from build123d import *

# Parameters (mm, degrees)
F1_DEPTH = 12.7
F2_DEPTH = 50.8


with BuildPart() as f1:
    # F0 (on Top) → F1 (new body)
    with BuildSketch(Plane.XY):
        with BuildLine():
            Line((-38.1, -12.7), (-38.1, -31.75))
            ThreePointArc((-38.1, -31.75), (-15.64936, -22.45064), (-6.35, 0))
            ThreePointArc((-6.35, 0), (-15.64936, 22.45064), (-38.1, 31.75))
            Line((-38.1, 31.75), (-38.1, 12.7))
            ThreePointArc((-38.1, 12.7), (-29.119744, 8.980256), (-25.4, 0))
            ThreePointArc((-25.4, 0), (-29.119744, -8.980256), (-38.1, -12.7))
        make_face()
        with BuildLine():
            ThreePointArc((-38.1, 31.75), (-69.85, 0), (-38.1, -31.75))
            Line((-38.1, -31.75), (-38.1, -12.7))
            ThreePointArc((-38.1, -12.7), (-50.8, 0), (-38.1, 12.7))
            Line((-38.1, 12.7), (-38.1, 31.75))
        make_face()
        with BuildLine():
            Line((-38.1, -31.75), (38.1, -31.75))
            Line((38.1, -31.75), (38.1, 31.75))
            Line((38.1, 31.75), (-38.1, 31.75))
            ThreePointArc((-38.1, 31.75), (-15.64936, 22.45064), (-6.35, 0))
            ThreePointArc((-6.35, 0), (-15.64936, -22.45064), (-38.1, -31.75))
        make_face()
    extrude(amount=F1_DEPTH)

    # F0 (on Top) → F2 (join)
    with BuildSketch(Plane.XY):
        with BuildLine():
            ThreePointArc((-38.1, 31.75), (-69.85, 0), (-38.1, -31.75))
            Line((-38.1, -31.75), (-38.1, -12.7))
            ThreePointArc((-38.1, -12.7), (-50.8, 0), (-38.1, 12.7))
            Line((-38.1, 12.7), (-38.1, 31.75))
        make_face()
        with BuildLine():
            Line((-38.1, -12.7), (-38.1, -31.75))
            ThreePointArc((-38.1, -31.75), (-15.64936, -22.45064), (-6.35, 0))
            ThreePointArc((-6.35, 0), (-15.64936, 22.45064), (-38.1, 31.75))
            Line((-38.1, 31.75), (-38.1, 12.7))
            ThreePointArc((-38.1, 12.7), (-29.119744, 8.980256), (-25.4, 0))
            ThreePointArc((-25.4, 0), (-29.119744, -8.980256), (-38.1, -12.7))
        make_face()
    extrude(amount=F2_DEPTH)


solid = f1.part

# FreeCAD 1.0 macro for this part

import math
import FreeCAD as App
import Part
import Sketcher

V = App.Vector
Q = App.Units.Quantity

doc = App.newDocument("Part")
body = doc.addObject("PartDesign::Body", "Body")

sketch1 = doc.addObject("Sketcher::SketchObject", "Sketch")
body.addObject(sketch1)
sketch1.AttachmentSupport = (doc.XY_Plane, [""])
sketch1.MapMode = "FlatFace"
sketch1.addGeometry(Part.ArcOfCircle(Part.Circle(V(-38, 0, 0), V(0, 0, 1), 32), math.radians(90), math.radians(270)), False)
sketch1.addGeometry(Part.LineSegment(V(-38, -32, 0), V(38, -32, 0)), False)
sketch1.addGeometry(Part.LineSegment(V(38, -32, 0), V(38, 32, 0)), False)
sketch1.addGeometry(Part.LineSegment(V(38, 32, 0), V(-38, 32, 0)), False)
sketch1.addGeometry(Part.ArcOfCircle(Part.Circle(V(-38, 0, 0), V(0, 0, 1), 13), math.radians(0), math.radians(90)), False)
sketch1.addGeometry(Part.ArcOfCircle(Part.Circle(V(-38, 0, 0), V(0, 0, 1), 13), math.radians(-90), math.radians(0)), False)
sketch1.addGeometry(Part.ArcOfCircle(Part.Circle(V(-38, 0, 0), V(0, 0, 1), 13), math.radians(90), math.radians(270)), False)
sketch1.addConstraint(Sketcher.Constraint("Tangent", 0, 2, 1, 1))
sketch1.addConstraint(Sketcher.Constraint("Coincident", 1, 2, 2, 1))
sketch1.addConstraint(Sketcher.Constraint("Coincident", 2, 2, 3, 1))
sketch1.addConstraint(Sketcher.Constraint("Tangent", 3, 2, 0, 1))
sketch1.addConstraint(Sketcher.Constraint("Tangent", 4, 1, 5, 2))
sketch1.addConstraint(Sketcher.Constraint("Tangent", 5, 1, 6, 2))
sketch1.addConstraint(Sketcher.Constraint("Tangent", 6, 1, 4, 2))
sketch1.addConstraint(Sketcher.Constraint("Horizontal", 1))
sketch1.addConstraint(Sketcher.Constraint("Vertical", 2))
sketch1.addConstraint(Sketcher.Constraint("Horizontal", 3))
sketch1.addConstraint(Sketcher.Constraint("Coincident", 4, 3, 0, 3))
sketch1.addConstraint(Sketcher.Constraint("Symmetric", 0, 2, 2, 2, -1, 1))
sketch1.addConstraint(Sketcher.Constraint("PointOnObject", 4, 1, -1))
sketch1.addConstraint(Sketcher.Constraint("Vertical", 3, 2, 5, 1))
sketch1.addConstraint(Sketcher.Constraint("Vertical", 5, 1, 6, 1))
sketch1.addConstraint(Sketcher.Constraint("Radius", 4, Q("0.5 in")))
sketch1.addConstraint(Sketcher.Constraint("DistanceX", 1, 1, 1, 2, Q("3 in")))
sketch1.addConstraint(Sketcher.Constraint("Radius", 0, Q("1.25 in")))
pad1 = doc.addObject("PartDesign::Pad", "Pad")
body.addObject(pad1)
pad1.Profile = sketch1
pad1.Length = Q("0.5 in")

sketch2 = doc.addObject("Sketcher::SketchObject", "Sketch001")
body.addObject(sketch2)
sketch2.AttachmentSupport = (doc.XY_Plane, [""])
sketch2.MapMode = "FlatFace"
sketch2.addGeometry(Part.ArcOfCircle(Part.Circle(V(-38, 0, 0), V(0, 0, 1), 32), math.radians(90), math.radians(270)), False)
sketch2.addGeometry(Part.ArcOfCircle(Part.Circle(V(-38, 0, 0), V(0, 0, 1), 32), math.radians(-90), math.radians(0)), False)
sketch2.addGeometry(Part.ArcOfCircle(Part.Circle(V(-38, 0, 0), V(0, 0, 1), 32), math.radians(0), math.radians(90)), False)
sketch2.addGeometry(Part.ArcOfCircle(Part.Circle(V(-38, 0, 0), V(0, 0, 1), 13), math.radians(90), math.radians(270)), False)
sketch2.addGeometry(Part.ArcOfCircle(Part.Circle(V(-38, 0, 0), V(0, 0, 1), 13), math.radians(0), math.radians(90)), False)
sketch2.addGeometry(Part.ArcOfCircle(Part.Circle(V(-38, 0, 0), V(0, 0, 1), 13), math.radians(-90), math.radians(0)), False)
sketch2.addConstraint(Sketcher.Constraint("Tangent", 0, 2, 1, 1))
sketch2.addConstraint(Sketcher.Constraint("Tangent", 1, 2, 2, 1))
sketch2.addConstraint(Sketcher.Constraint("Tangent", 2, 2, 0, 1))
sketch2.addConstraint(Sketcher.Constraint("Tangent", 3, 1, 4, 2))
sketch2.addConstraint(Sketcher.Constraint("Tangent", 4, 1, 5, 2))
sketch2.addConstraint(Sketcher.Constraint("Tangent", 5, 1, 3, 2))
sketch2.addConstraint(Sketcher.Constraint("Coincident", 3, 3, 0, 3))
sketch2.addConstraint(Sketcher.Constraint("Symmetric", 0, 2, 2, 2, -1))
sketch2.addConstraint(Sketcher.Constraint("PointOnObject", 1, 2, -1))
sketch2.addConstraint(Sketcher.Constraint("PointOnObject", 4, 1, -1))
sketch2.addConstraint(Sketcher.Constraint("Vertical", 5, 3, 0, 2))
sketch2.addConstraint(Sketcher.Constraint("Vertical", 2, 2, 3, 1))
sketch2.addConstraint(Sketcher.Constraint("Vertical", 3, 1, 5, 1))
sketch2.addConstraint(Sketcher.Constraint("Radius", 3, Q("0.5 in")))
sketch2.addConstraint(Sketcher.Constraint("Radius", 0, Q("1.25 in")))
sketch2.addConstraint(Sketcher.Constraint("DistanceX", 4, 1, -1, 1, Q("1 in")))
pad2 = doc.addObject("PartDesign::Pad", "Pad001")
body.addObject(pad2)
pad2.Profile = sketch2
pad2.Length = Q("2 in")

doc.recompute()
